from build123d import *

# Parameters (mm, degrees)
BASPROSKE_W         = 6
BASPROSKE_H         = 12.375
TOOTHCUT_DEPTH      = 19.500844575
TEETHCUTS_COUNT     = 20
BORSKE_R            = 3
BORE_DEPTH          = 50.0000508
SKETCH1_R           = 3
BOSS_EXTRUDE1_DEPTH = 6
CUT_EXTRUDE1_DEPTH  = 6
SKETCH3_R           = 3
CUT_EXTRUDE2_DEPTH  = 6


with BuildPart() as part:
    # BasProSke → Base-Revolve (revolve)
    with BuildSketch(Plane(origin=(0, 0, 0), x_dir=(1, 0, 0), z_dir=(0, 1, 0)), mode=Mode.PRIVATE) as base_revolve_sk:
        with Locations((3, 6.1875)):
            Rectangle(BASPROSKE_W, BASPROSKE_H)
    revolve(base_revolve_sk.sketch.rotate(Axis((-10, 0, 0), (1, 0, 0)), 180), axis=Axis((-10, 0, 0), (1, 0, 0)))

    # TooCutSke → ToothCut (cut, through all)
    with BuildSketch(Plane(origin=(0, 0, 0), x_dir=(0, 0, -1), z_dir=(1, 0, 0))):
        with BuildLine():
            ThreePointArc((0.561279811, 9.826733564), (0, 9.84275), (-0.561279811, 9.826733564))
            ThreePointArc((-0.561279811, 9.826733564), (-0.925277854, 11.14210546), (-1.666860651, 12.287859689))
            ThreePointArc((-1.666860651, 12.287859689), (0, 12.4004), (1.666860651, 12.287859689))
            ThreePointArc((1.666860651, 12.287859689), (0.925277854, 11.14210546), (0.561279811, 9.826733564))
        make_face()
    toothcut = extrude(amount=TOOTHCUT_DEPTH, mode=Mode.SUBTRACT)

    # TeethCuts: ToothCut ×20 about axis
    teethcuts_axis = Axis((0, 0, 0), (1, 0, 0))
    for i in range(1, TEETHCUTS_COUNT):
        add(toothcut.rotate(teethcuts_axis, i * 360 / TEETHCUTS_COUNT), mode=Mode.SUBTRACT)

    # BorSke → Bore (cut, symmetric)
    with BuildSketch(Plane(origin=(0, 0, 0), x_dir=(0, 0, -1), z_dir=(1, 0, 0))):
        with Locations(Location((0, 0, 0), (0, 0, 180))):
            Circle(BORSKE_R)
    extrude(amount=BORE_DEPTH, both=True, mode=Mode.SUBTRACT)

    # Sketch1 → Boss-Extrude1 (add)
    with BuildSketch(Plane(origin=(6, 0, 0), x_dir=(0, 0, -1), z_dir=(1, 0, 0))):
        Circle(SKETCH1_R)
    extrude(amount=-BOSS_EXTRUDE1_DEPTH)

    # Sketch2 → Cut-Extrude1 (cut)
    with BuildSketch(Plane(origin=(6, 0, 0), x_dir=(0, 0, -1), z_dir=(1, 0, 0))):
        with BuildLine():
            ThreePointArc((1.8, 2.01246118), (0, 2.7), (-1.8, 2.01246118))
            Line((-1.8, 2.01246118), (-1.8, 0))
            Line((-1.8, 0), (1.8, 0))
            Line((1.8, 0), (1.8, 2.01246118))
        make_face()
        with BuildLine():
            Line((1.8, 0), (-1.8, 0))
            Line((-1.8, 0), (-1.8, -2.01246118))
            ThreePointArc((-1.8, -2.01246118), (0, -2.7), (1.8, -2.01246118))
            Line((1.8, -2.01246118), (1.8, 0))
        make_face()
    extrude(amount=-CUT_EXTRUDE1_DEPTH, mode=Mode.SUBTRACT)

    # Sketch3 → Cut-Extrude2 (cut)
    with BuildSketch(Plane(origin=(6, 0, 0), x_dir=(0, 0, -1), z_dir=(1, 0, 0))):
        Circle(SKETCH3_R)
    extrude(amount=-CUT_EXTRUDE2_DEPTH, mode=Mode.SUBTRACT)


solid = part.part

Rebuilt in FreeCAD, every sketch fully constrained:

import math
import FreeCAD as App
import Part
import Sketcher
from FreeCAD import Vector

doc = App.newDocument("Part")
body = doc.addObject("PartDesign::Body", "Body")

sketch1 = doc.addObject("Sketcher::SketchObject", "Sketch")
body.addObject(sketch1)
sketch1.AttachmentSupport = (doc.XZ_Plane, [""])
sketch1.MapMode = "FlatFace"
sketch1.addGeometry([
    Part.LineSegment(Vector(0, -12.375, 0), Vector(0, 0, 0)),
    Part.LineSegment(Vector(0, 0, 0), Vector(6, 0, 0)),
    Part.LineSegment(Vector(6, 0, 0), Vector(6, -12.375, 0)),
    Part.LineSegment(Vector(6, -12.375, 0), Vector(0, -12.375, 0)),
], False)
sketch1.addConstraint([
    Sketcher.Constraint("Coincident", 0, 2, 1, 1),
    Sketcher.Constraint("Coincident", 1, 2, 2, 1),
    Sketcher.Constraint("Coincident", 2, 2, 3, 1),
    Sketcher.Constraint("Coincident", 3, 2, 0, 1),
    Sketcher.Constraint("Vertical", 0),
    Sketcher.Constraint("Horizontal", 1),
    Sketcher.Constraint("Vertical", 2),
    Sketcher.Constraint("Horizontal", 3),
    Sketcher.Constraint("Coincident", 0, 2, -1, 1),
    Sketcher.Constraint("DistanceX", 1, 1, 1, 2, 6.0),
    Sketcher.Constraint("DistanceY", 0, 1, 0, 2, 12.375),
])
revolution = doc.addObject("PartDesign::Revolution", "Revolution")
body.addObject(revolution)
revolution.Profile = sketch1
revolution.ReferenceAxis = (sketch1, ["H_Axis"])
revolution.Angle = 360

sketch2 = doc.addObject("Sketcher::SketchObject", "Sketch001")
body.addObject(sketch2)
sketch2.AttachmentSupport = (doc.YZ_Plane, [""])
sketch2.MapMode = "FlatFace"
sketch2.addGeometry([
    Part.ArcOfCircle(Part.Circle(Vector(0, 0, 0), Vector(0, 0, 1), 9.84275), math.radians(-3.269048), math.radians(3.269048)),
    Part.ArcOfCircle(Part.Circle(Vector(9.298136, -5.030126, 0), Vector(0, 0, 1), 4.5), math.radians(48.36499), math.radians(83.254113)),
    Part.ArcOfCircle(Part.Circle(Vector(0, 0, 0), Vector(0, 0, 1), 12.4004), math.radians(-7.725077), math.radians(7.725077)),
    Part.ArcOfCircle(Part.Circle(Vector(9.298136, 5.030126, 0), Vector(0, 0, 1), 4.5), math.radians(-83.254113), math.radians(-48.36499)),
], False)
sketch2.addConstraint([
    Sketcher.Constraint("Coincident", 0, 1, 1, 2),
    Sketcher.Constraint("Coincident", 1, 1, 2, 1),
    Sketcher.Constraint("Coincident", 2, 2, 3, 2),
    Sketcher.Constraint("Coincident", 3, 1, 0, 2),
    Sketcher.Constraint("Coincident", 0, 3, -1, 1),
    Sketcher.Constraint("Coincident", 2, 3, -1, 1),
    Sketcher.Constraint("Equal", 1, 3),
    Sketcher.Constraint("Symmetric", 1, 3, 3, 3, -1),
    Sketcher.Constraint("Radius", 1, 4.5),
    Sketcher.Constraint("Radius", 2, 12.4004),
    Sketcher.Constraint("Radius", 0, 9.84275),
    Sketcher.Constraint("DistanceY", 0, 1, -1, 1, 0.56128),
    Sketcher.Constraint("DistanceX", -1, 1, 1, 1, 12.28786),
])
pocket1 = doc.addObject("PartDesign::Pocket", "Pocket")
body.addObject(pocket1)
pocket1.Profile = sketch2
pocket1.Type = "ThroughAll"
pocket1.Reversed = True
doc.recompute()

polarpattern = doc.addObject("PartDesign::PolarPattern", "PolarPattern")
body.addObject(polarpattern)
polarpattern.Originals = [pocket1]
polarpattern.Axis = (doc.X_Axis, [""])
polarpattern.Angle = 360
polarpattern.Occurrences = 20
body.Tip = polarpattern

sketch3 = doc.addObject("Sketcher::SketchObject", "Sketch002")
body.addObject(sketch3)
sketch3.AttachmentSupport = (doc.YZ_Plane, [""])
sketch3.MapMode = "FlatFace"
sketch3.addGeometry(Part.Circle(Vector(0, 0, 0), Vector(0, 0, 1), 3), False)
sketch3.addConstraint([
    Sketcher.Constraint("Coincident", 0, 3, -1, 1),
    Sketcher.Constraint("Diameter", 0, 6.0),
])
pocket2 = doc.addObject("PartDesign::Pocket", "Pocket001")
body.addObject(pocket2)
pocket2.Profile = sketch3
pocket2.Length = 100.000102
pocket2.Midplane = True

sketch4 = doc.addObject("Sketcher::SketchObject", "Sketch003")
body.addObject(sketch4)
sketch4.AttachmentSupport = (doc.YZ_Plane, [""])
sketch4.MapMode = "FlatFace"
sketch4.AttachmentOffset = App.Placement(Vector(0, 0, 6), App.Rotation())
sketch4.addGeometry(Part.Circle(Vector(0, 0, 0), Vector(0, 0, 1), 3), False)
sketch4.addConstraint([
    Sketcher.Constraint("Coincident", 0, 3, -1, 1),
    Sketcher.Constraint("Diameter", 0, 6.0),
])
pad1 = doc.addObject("PartDesign::Pad", "Pad")
body.addObject(pad1)
pad1.Profile = sketch4
pad1.Length = 6
pad1.Reversed = True

sketch5 = doc.addObject("Sketcher::SketchObject", "Sketch004")
body.addObject(sketch5)
sketch5.AttachmentSupport = (doc.YZ_Plane, [""])
sketch5.MapMode = "FlatFace"
sketch5.AttachmentOffset = App.Placement(Vector(0, 0, 6), App.Rotation())
sketch5.addGeometry([
    Part.ArcOfCircle(Part.Circle(Vector(0, 0, 0), Vector(0, 0, 1), 2.7), math.radians(-41.810315), math.radians(41.810315)),
    Part.LineSegment(Vector(2.012461, 1.8, 0), Vector(-2.012461, 1.8, 0)),
    Part.ArcOfCircle(Part.Circle(Vector(0, 0, 0), Vector(0, 0, 1), 2.7), math.radians(138.189685), math.radians(221.810315)),
    Part.LineSegment(Vector(-2.012461, -1.8, 0), Vector(2.012461, -1.8, 0)),
], False)
sketch5.addConstraint([
    Sketcher.Constraint("Coincident", 0, 2, 1, 1),
    Sketcher.Constraint("Coincident", 1, 2, 2, 1),
    Sketcher.Constraint("Coincident", 2, 2, 3, 1),
    Sketcher.Constraint("Coincident", 3, 2, 0, 1),
    Sketcher.Constraint("Horizontal", 1),
    Sketcher.Constraint("Horizontal", 3),
    Sketcher.Constraint("Coincident", 0, 3, -1, 1),
    Sketcher.Constraint("Coincident", 2, 3, -1, 1),
    Sketcher.Constraint("Equal", 0, 2),
    Sketcher.Constraint("Vertical", 1, 2, 2, 2),
    Sketcher.Constraint("Radius", 0, 2.7),
    Sketcher.Constraint("DistanceY", -1, 1, 0, 2, 1.8),
])
pocket3 = doc.addObject("PartDesign::Pocket", "Pocket002")
body.addObject(pocket3)
pocket3.Profile = sketch5
pocket3.Length = 6

sketch6 = doc.addObject("Sketcher::SketchObject", "Sketch005")
body.addObject(sketch6)
sketch6.AttachmentSupport = (doc.YZ_Plane, [""])
sketch6.MapMode = "FlatFace"
sketch6.AttachmentOffset = App.Placement(Vector(0, 0, 6), App.Rotation())
sketch6.addGeometry(Part.Circle(Vector(0, 0, 0), Vector(0, 0, 1), 3), False)
sketch6.addConstraint([
    Sketcher.Constraint("Coincident", 0, 3, -1, 1),
    Sketcher.Constraint("Diameter", 0, 6.0),
])
pocket4 = doc.addObject("PartDesign::Pocket", "Pocket003")
body.addObject(pocket4)
pocket4.Profile = sketch6
pocket4.Length = 6

doc.recompute()
